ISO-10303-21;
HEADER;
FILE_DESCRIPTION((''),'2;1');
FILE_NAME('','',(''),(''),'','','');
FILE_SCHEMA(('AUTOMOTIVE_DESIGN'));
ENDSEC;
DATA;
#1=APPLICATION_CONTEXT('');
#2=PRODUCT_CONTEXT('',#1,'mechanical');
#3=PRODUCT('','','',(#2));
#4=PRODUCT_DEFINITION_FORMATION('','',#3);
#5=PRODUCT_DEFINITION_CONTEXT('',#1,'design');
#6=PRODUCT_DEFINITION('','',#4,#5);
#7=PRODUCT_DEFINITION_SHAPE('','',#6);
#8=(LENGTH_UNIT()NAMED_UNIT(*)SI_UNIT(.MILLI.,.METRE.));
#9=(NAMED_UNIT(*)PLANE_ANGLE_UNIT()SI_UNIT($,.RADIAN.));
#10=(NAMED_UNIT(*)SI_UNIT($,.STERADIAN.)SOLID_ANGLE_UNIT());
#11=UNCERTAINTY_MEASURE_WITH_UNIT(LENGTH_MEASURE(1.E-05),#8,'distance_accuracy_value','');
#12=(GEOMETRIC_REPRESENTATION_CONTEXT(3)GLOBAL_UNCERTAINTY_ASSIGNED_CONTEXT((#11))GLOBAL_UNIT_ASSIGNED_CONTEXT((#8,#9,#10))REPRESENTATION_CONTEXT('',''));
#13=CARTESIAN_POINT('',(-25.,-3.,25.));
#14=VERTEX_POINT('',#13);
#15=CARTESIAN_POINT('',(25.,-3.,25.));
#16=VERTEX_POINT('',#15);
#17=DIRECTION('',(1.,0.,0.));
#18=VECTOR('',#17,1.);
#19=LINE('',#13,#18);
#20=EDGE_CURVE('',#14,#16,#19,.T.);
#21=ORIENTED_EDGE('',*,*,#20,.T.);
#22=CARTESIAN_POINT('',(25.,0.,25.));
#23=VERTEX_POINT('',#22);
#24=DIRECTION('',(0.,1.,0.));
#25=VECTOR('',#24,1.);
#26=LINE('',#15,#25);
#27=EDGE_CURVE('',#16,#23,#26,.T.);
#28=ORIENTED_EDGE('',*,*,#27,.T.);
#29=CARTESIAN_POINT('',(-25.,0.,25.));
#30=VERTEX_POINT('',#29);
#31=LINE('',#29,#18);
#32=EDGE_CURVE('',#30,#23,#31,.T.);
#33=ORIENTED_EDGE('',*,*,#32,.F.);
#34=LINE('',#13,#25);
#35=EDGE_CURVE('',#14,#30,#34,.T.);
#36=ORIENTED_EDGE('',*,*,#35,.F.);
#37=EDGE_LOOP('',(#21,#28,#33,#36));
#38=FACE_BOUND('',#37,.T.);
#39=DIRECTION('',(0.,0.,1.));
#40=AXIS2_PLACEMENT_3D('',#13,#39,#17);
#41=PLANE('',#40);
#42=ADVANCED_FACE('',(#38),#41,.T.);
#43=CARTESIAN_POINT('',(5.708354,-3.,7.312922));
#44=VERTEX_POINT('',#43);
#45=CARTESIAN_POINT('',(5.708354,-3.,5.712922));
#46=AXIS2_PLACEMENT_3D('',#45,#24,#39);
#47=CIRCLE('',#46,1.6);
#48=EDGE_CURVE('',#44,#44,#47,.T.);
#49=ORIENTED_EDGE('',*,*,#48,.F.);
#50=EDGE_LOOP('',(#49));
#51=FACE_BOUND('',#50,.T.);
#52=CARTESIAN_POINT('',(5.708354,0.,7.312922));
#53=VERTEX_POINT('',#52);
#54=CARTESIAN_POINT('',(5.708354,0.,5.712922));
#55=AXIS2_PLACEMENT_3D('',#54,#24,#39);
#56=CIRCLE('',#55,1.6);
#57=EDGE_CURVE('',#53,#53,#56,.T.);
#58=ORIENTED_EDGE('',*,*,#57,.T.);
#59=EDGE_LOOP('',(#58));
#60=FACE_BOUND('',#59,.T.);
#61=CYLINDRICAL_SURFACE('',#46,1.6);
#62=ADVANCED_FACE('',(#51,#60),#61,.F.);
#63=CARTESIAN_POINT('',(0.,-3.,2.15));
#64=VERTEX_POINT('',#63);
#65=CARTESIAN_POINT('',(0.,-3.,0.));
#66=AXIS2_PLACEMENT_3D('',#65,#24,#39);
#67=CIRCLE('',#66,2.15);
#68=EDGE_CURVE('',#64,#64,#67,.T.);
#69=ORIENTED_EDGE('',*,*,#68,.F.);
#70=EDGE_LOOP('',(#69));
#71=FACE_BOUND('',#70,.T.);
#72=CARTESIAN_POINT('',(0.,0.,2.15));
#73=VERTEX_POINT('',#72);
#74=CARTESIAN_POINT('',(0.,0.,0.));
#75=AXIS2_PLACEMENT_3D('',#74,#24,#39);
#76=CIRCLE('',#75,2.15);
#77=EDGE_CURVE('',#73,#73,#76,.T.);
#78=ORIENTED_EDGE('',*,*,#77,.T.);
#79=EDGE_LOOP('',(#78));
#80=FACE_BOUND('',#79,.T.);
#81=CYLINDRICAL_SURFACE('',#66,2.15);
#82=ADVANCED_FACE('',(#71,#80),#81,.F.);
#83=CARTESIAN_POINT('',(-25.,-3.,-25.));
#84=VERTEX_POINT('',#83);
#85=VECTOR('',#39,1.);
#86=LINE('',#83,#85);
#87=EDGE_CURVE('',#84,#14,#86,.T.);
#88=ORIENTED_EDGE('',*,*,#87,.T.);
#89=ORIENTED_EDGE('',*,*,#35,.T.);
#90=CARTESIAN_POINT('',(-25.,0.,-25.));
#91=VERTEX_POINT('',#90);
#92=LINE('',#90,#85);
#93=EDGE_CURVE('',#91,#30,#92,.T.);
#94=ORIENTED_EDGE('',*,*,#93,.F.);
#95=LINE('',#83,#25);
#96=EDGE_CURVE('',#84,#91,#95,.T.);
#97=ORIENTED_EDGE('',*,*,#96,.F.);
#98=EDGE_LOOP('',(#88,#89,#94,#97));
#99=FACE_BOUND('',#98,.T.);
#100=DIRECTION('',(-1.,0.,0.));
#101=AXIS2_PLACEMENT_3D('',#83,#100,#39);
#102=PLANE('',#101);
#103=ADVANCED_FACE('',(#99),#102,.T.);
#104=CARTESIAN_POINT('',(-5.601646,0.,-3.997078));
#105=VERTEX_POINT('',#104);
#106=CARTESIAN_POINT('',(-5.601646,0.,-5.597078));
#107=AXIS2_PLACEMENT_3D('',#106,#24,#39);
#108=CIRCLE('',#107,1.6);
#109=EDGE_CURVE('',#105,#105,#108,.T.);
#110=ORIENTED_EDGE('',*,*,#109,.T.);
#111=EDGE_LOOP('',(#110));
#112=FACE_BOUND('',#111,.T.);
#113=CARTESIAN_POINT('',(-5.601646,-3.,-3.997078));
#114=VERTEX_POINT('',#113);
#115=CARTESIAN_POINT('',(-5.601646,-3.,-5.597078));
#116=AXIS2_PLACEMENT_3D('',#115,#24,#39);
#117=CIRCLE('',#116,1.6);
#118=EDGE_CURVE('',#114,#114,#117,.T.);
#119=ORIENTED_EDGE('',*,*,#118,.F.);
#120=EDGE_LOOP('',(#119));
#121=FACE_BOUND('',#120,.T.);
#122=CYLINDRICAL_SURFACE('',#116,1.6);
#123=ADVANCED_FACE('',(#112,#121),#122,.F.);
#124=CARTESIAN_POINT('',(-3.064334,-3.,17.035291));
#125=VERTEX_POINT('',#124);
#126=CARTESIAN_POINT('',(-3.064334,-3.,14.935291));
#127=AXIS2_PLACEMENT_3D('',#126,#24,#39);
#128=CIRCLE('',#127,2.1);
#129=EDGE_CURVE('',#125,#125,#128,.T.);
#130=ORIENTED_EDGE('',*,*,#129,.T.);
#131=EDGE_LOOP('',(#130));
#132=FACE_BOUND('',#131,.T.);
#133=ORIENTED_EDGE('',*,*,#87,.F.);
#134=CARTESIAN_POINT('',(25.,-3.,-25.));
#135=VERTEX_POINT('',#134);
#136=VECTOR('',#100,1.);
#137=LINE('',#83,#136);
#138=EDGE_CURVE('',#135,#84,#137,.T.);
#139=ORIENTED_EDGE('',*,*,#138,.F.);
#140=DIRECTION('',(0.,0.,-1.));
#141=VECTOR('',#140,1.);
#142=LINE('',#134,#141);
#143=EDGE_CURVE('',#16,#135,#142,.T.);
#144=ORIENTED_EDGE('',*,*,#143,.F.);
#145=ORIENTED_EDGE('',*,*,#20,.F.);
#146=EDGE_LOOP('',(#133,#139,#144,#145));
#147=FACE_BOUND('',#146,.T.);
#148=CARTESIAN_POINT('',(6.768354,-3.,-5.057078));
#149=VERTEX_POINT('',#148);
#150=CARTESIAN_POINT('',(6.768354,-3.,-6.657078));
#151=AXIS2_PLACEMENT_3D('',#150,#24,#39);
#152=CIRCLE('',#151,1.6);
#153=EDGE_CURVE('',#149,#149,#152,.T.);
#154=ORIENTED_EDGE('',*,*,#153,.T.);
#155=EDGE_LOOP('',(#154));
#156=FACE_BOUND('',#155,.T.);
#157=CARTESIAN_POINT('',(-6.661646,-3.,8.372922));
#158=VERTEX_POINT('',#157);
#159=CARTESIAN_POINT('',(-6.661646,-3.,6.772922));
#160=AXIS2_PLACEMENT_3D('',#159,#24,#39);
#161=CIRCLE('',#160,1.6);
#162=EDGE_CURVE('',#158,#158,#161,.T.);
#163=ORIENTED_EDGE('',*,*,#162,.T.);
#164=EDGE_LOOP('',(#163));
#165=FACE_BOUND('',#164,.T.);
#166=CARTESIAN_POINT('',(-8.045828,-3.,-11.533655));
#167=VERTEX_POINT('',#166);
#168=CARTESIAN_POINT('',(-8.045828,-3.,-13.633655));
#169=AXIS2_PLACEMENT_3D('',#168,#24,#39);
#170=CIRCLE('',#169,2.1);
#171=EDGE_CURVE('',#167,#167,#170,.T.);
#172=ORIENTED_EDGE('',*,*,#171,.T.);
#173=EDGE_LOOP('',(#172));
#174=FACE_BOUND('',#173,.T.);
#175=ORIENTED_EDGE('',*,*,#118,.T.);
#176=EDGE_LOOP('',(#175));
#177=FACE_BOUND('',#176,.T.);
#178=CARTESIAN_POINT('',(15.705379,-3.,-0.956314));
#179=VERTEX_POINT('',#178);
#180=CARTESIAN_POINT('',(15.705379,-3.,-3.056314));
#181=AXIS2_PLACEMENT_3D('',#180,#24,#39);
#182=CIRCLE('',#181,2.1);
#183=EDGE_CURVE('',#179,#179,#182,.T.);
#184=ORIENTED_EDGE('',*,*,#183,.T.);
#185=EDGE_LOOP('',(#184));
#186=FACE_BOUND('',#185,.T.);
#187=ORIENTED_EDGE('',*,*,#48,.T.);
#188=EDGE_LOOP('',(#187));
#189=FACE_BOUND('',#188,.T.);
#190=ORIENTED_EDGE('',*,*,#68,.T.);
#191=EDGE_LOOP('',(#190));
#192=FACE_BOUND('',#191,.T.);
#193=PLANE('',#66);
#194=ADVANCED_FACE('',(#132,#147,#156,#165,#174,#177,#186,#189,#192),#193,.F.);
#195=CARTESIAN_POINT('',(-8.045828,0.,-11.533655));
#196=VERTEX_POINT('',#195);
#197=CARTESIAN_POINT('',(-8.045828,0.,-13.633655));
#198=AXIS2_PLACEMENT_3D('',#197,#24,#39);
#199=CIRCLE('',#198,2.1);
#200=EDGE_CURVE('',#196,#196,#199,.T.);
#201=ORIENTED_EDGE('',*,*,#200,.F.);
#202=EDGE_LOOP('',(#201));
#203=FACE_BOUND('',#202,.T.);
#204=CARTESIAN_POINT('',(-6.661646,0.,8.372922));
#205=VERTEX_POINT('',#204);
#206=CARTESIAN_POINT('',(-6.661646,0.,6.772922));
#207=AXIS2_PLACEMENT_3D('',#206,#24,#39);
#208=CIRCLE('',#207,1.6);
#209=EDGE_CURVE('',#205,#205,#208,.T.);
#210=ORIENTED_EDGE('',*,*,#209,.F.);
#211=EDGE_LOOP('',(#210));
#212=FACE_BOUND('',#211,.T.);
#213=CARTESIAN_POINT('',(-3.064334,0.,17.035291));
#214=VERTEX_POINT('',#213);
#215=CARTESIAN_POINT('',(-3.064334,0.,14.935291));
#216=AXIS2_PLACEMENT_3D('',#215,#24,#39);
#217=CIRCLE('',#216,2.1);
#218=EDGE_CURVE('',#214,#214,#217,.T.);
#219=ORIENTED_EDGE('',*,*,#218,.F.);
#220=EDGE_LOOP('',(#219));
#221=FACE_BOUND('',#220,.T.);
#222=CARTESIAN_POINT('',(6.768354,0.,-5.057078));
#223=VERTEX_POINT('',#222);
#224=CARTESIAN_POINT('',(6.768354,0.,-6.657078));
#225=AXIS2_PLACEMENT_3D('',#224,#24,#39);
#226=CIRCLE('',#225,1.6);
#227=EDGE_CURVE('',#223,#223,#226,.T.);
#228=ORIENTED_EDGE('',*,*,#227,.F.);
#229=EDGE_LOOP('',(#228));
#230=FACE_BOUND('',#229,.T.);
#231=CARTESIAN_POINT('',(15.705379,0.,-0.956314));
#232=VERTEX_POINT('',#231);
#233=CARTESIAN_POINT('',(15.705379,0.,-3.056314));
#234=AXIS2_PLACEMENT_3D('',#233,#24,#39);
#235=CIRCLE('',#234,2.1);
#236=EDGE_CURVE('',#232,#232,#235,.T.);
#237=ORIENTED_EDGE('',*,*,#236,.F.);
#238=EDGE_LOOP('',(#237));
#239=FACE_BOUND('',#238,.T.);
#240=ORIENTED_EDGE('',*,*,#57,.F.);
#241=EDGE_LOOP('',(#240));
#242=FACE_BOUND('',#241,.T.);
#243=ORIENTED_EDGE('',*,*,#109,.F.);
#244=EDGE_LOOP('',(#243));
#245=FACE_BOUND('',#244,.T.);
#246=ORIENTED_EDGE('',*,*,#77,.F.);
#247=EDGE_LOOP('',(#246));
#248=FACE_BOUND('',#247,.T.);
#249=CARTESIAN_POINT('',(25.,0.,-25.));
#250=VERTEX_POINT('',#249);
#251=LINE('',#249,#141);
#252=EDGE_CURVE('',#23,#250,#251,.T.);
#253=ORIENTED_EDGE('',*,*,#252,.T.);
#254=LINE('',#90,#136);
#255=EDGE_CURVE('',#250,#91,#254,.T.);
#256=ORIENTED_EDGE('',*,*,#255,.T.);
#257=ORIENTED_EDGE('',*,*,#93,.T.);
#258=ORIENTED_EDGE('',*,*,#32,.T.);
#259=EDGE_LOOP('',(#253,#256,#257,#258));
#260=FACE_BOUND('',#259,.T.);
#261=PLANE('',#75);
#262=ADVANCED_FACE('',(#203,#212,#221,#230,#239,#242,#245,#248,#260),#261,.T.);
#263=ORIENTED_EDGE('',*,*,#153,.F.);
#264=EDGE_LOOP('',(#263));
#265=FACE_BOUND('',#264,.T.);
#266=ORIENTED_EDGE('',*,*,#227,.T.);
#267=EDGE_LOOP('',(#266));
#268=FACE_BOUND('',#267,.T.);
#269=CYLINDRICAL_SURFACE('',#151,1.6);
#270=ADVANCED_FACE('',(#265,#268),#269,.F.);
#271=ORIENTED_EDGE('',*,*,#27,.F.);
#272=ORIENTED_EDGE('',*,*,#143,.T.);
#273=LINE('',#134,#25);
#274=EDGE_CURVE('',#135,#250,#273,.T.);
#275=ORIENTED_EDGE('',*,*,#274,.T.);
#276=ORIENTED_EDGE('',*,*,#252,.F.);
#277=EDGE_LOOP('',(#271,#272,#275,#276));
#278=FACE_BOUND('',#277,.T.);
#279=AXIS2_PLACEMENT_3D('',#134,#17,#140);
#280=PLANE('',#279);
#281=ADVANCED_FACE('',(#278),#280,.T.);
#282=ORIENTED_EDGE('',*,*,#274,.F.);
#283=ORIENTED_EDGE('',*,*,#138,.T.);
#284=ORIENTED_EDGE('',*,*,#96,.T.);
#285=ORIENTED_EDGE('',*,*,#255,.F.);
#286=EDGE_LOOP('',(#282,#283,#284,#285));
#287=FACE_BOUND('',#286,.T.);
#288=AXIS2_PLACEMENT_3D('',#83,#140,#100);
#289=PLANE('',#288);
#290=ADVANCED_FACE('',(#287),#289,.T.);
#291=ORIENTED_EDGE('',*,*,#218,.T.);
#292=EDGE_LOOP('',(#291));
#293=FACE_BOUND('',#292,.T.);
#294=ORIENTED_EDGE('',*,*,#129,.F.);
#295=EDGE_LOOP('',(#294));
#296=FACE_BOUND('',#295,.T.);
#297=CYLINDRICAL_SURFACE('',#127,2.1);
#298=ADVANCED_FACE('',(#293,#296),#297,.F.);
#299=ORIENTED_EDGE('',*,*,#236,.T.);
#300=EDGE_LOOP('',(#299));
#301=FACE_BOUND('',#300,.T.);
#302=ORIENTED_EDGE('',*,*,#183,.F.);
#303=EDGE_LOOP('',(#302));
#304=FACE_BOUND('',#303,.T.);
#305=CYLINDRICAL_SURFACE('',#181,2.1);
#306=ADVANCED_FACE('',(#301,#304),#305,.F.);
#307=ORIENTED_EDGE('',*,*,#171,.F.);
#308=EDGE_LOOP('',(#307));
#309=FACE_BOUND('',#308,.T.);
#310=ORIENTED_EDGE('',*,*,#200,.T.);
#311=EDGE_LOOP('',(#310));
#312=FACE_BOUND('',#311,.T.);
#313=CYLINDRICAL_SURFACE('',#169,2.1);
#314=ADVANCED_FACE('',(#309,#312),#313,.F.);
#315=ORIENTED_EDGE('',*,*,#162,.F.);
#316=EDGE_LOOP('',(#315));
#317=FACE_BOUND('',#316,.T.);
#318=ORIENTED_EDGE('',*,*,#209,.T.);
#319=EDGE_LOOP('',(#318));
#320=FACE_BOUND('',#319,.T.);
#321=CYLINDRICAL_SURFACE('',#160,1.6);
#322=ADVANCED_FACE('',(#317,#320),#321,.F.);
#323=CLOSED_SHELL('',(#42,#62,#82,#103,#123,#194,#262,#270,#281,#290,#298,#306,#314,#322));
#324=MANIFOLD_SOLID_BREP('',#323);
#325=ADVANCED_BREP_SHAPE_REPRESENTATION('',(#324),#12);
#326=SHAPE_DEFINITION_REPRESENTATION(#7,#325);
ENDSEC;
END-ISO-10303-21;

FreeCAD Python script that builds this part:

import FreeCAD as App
import Part
import Sketcher
Q = App.Units.Quantity

doc = App.newDocument("Part")
body = doc.addObject("PartDesign::Body", "Body")

sketch1 = body.newObject("Sketcher::SketchObject", "Sketch")
sketch1.AttachmentSupport = (doc.getObject("XZ_Plane"), [""])
sketch1.MapMode = "FlatFace"
sketch1.addGeometry([
    Part.LineSegment(App.Vector(-25, -25, 0), App.Vector(-25, 25, 0)),
    Part.LineSegment(App.Vector(-25, 25, 0), App.Vector(25, 25, 0)),
    Part.LineSegment(App.Vector(25, 25, 0), App.Vector(25, -25, 0)),
    Part.LineSegment(App.Vector(25, -25, 0), App.Vector(-25, -25, 0)),
], False)
sketch1.addConstraint([
    Sketcher.Constraint("Coincident", 0, 2, 1, 1),
    Sketcher.Constraint("Coincident", 1, 2, 2, 1),
    Sketcher.Constraint("Coincident", 2, 2, 3, 1),
    Sketcher.Constraint("Coincident", 3, 2, 0, 1),
    Sketcher.Constraint("Vertical", 0),
    Sketcher.Constraint("Horizontal", 1),
    Sketcher.Constraint("Vertical", 2),
    Sketcher.Constraint("Horizontal", 3),
    Sketcher.Constraint("Symmetric", 0, 2, 2, 2, -1, 1),
    Sketcher.Constraint("Equal", 3, 0),
    Sketcher.Constraint("DistanceX", 1, 1, 1, 2, Q("50 mm")),
])
pad1 = body.newObject("PartDesign::Pad", "Pad")
pad1.Profile = sketch1
pad1.Length = 3

sketch2 = body.newObject("Sketcher::SketchObject", "Sketch001")
sketch2.AttachmentSupport = (doc.getObject("XZ_Plane"), [""])
sketch2.MapMode = "FlatFace"
sketch2.addGeometry(Part.Circle(App.Vector(0, 0, 0), App.Vector(0, 0, 1), 2.1), False)
sketch2.addConstraint([
    Sketcher.Constraint("Coincident", 0, 3, -1, 1),
    Sketcher.Constraint("Diameter", 0, Q("4.3 mm")),
])
pocket1 = body.newObject("PartDesign::Pocket", "Pocket")
pocket1.Profile = sketch2
pocket1.Type = "ThroughAll"
pocket1.Reversed = True

sketch3 = body.newObject("Sketcher::SketchObject", "Sketch002")
sketch3.AttachmentSupport = (doc.getObject("XZ_Plane"), [""])
sketch3.MapMode = "FlatFace"
sketch3.addGeometry([
    Part.Circle(App.Vector(6.8, -6.7, 0), App.Vector(0, 0, 1), 1.6),
    Part.Circle(App.Vector(-6.7, 6.8, 0), App.Vector(0, 0, 1), 1.6),
    Part.Circle(App.Vector(-5.6, -5.6, 0), App.Vector(0, 0, 1), 1.6),
    Part.Circle(App.Vector(5.7, 5.7, 0), App.Vector(0, 0, 1), 1.6),
], False)
sketch3.addConstraint([
    Sketcher.Constraint("Equal", 0, 1),
    Sketcher.Constraint("Equal", 1, 2),
    Sketcher.Constraint("Equal", 2, 3),
    Sketcher.Constraint("Diameter", 0, Q("3.2 mm")),
    Sketcher.Constraint("DistanceX", 1, 3, 0, 3, Q("13.43 mm")),
    Sketcher.Constraint("DistanceY", 0, 3, 1, 3, Q("13.43 mm")),
    Sketcher.Constraint("DistanceX", 2, 3, 0, 3, Q("12.37 mm")),
    Sketcher.Constraint("DistanceY", 0, 3, 2, 3, Q("1.06 mm")),
    Sketcher.Constraint("DistanceX", 3, 3, 0, 3, Q("1.06 mm")),
    Sketcher.Constraint("DistanceY", 0, 3, 3, 3, Q("12.37 mm")),
    Sketcher.Constraint("DistanceY", 0, 3, -1, 1, Q("6.657078 mm")),
    Sketcher.Constraint("DistanceX", -1, 1, 0, 3, Q("6.768354 mm")),
])
pocket2 = body.newObject("PartDesign::Pocket", "Pocket001")
pocket2.Profile = sketch3
pocket2.Type = "ThroughAll"
pocket2.Reversed = True

sketch4 = body.newObject("Sketcher::SketchObject", "Sketch003")
sketch4.AttachmentSupport = (doc.getObject("XZ_Plane"), [""])
sketch4.MapMode = "FlatFace"
sketch4.addGeometry([
    Part.Circle(App.Vector(15.7, -3.1, 0), App.Vector(0, 0, 1), 2.1),
    Part.Circle(App.Vector(-3.1, 14.9, 0), App.Vector(0, 0, 1), 2.1),
    Part.Circle(App.Vector(-8, -13.6, 0), App.Vector(0, 0, 1), 2.1),
], False)
sketch4.addConstraint([
    Sketcher.Constraint("Equal", 0, 1),
    Sketcher.Constraint("Equal", 1, 2),
    Sketcher.Constraint("Diameter", 0, Q("4.2 mm")),
    Sketcher.Constraint("DistanceX", -1, 1, 0, 3, Q("15.705379 mm")),
    Sketcher.Constraint("DistanceY", -1, 1, 1, 3, Q("14.935291 mm")),
    Sketcher.Constraint("DistanceX", 2, 3, -1, 1, Q("8.045828 mm")),
    Sketcher.Constraint("DistanceY", 2, 3, 0, 3, Q("10.577341 mm")),
    Sketcher.Constraint("DistanceY", 0, 3, -1, 1, Q("3.056314 mm")),
    Sketcher.Constraint("DistanceX", 1, 3, -1, 1, Q("3.064334 mm")),
])
pocket3 = body.newObject("PartDesign::Pocket", "Pocket002")
pocket3.Profile = sketch4
pocket3.Type = "ThroughAll"
pocket3.Reversed = True

doc.recompute()
